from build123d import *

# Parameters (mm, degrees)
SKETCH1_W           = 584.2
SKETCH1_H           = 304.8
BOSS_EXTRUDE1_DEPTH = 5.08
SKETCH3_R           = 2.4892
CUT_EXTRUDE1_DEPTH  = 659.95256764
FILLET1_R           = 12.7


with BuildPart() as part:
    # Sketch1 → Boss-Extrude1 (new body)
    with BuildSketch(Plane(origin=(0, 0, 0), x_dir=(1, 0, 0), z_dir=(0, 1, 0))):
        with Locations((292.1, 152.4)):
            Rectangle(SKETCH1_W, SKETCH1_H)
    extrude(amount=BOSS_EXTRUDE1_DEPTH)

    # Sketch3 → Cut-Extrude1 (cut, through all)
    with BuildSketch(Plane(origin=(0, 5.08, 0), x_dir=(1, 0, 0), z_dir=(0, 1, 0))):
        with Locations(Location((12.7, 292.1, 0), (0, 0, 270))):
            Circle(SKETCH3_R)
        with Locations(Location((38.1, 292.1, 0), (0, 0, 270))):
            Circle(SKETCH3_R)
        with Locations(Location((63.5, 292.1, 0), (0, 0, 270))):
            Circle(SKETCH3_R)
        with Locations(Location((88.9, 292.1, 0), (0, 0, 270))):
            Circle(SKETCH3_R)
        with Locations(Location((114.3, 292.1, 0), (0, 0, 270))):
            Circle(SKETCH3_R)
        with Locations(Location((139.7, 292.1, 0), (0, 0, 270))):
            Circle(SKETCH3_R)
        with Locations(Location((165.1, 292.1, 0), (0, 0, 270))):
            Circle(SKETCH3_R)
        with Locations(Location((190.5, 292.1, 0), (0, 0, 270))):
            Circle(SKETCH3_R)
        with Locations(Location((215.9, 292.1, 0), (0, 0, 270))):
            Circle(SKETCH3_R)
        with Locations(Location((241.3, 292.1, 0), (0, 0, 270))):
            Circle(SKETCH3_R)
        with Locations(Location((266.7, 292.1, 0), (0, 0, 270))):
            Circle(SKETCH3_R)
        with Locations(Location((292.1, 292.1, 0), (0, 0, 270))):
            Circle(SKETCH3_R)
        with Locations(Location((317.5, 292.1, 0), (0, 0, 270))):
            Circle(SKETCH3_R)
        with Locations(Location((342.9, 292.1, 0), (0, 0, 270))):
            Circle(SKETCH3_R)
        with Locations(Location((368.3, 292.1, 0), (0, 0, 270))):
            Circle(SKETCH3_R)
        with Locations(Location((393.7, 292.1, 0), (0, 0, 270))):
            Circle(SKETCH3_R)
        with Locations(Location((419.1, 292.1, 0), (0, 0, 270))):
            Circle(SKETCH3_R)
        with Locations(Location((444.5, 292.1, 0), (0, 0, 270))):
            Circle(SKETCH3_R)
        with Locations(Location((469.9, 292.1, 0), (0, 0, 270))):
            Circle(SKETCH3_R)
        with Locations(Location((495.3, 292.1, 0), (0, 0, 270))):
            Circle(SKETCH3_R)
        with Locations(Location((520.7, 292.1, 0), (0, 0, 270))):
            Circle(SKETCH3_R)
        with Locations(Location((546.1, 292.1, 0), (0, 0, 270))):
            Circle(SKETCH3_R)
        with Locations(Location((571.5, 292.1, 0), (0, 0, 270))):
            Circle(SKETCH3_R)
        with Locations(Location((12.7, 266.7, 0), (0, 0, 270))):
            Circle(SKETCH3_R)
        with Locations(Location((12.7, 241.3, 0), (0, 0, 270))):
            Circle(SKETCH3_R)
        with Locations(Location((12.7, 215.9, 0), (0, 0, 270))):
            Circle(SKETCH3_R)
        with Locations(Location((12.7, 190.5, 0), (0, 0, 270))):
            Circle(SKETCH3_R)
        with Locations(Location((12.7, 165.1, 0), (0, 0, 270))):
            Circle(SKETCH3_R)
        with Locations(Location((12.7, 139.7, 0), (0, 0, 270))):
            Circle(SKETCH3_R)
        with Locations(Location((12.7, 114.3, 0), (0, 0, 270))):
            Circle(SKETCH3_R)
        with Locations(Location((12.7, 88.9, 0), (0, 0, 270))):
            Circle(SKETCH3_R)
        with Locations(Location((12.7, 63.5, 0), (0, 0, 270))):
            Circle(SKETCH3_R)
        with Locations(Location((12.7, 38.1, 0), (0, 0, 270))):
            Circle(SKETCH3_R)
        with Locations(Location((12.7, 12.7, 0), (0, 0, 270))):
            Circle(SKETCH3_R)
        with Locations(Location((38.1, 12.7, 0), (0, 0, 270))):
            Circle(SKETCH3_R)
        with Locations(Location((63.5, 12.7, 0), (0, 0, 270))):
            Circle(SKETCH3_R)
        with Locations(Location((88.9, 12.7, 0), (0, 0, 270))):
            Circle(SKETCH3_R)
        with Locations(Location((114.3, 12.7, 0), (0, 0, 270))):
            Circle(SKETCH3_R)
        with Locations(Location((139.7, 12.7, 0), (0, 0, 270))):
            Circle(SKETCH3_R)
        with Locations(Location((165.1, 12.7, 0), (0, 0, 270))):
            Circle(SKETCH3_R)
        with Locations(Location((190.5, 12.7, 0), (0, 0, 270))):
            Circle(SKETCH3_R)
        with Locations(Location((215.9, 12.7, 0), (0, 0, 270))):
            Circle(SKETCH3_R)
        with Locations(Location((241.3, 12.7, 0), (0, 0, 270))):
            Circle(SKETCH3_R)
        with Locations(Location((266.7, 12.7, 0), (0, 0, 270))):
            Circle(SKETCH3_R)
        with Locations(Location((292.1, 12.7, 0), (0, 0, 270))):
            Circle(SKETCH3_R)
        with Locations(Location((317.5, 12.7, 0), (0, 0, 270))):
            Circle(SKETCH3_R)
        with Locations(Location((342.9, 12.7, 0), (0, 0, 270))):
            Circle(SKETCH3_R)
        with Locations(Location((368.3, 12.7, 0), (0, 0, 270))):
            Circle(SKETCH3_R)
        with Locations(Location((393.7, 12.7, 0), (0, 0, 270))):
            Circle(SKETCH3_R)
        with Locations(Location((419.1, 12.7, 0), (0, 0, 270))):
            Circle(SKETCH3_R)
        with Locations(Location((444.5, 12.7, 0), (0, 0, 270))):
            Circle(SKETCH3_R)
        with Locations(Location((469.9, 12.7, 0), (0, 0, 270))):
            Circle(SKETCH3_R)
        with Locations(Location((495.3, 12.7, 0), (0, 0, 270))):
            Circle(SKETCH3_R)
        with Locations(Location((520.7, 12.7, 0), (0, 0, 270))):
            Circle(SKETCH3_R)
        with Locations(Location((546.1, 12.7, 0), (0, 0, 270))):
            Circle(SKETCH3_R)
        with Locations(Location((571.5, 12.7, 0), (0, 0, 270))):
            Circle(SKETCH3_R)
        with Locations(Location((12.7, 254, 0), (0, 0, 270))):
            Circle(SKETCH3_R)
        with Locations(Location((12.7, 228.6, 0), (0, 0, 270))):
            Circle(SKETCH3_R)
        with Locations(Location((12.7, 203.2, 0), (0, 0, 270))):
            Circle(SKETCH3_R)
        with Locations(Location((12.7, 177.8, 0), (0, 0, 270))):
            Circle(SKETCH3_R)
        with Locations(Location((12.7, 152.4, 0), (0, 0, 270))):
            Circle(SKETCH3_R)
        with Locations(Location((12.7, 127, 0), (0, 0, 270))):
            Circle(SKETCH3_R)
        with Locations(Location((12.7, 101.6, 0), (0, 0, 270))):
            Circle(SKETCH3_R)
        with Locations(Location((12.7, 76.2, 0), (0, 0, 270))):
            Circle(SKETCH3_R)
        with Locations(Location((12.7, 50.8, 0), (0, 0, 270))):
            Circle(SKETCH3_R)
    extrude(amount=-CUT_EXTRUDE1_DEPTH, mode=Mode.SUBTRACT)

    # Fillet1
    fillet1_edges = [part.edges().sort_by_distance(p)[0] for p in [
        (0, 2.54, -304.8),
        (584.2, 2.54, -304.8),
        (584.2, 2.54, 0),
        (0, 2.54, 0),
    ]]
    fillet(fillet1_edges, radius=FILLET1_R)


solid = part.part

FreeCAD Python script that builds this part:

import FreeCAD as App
import Part
import Sketcher

V = App.Vector
Q = App.Units.Quantity


def edges_at(feature, points):
    """Names of the edges that pass closest to the given points."""
    edges = feature.Shape.Edges
    near = lambda p: min(range(len(edges)), key=lambda i: edges[i].distToShape(Part.Vertex(*p))[0])
    return sorted({f"Edge{near(p) + 1}" for p in points})


def add_polygon(sketch, points):
    """Adds a closed chain of lines whose ends are joined by coincident constraints."""
    first, n = sketch.GeometryCount, len(points)
    for a, b in zip(points, points[1:] + points[:1]):
        sketch.addGeometry(Part.LineSegment(App.Vector(*a, 0), App.Vector(*b, 0)), False)
    for i in range(n):
        sketch.addConstraint(Sketcher.Constraint("Coincident", first + i, 2, first + (i + 1) % n, 1))

doc = App.newDocument("Part")
body = doc.addObject("PartDesign::Body", "Body")

sketch1 = body.newObject("Sketcher::SketchObject", "Sketch")
sketch1.AttachmentSupport = (doc.getObject("XZ_Plane"), [""])
sketch1.MapMode = "FlatFace"
add_polygon(sketch1, [(0, -305), (0, 0), (584, 0), (584, -305)])
sketch1.addConstraint([
    Sketcher.Constraint("Vertical", 0),
    Sketcher.Constraint("Horizontal", 1),
    Sketcher.Constraint("Vertical", 2),
    Sketcher.Constraint("Horizontal", 3),
    Sketcher.Constraint("Coincident", 0, 2, -1, 1),
    Sketcher.Constraint("DistanceX", 1, 1, 1, 2, Q("23 in")),
    Sketcher.Constraint("DistanceY", 0, 1, 0, 2, Q("12 in")),
])
pad1 = body.newObject("PartDesign::Pad", "Pad")
pad1.Profile = sketch1
pad1.Length = Q("0.2 in")
pad1.Reversed = True

sketch2 = body.newObject("Sketcher::SketchObject", "Sketch001")
sketch2.AttachmentSupport = (doc.getObject("XZ_Plane"), [""])
sketch2.MapMode = "FlatFace"
sketch2.AttachmentOffset = App.Placement(V(0, 0, -0.2 * 25.4), App.Rotation())
sketch2.addGeometry([
    Part.Circle(V(12.7, -292.1, 0), V(0, 0, 1), 2.5),
    Part.Circle(V(38.1, -292.1, 0), V(0, 0, 1), 2.5),
    Part.Circle(V(63.5, -292.1, 0), V(0, 0, 1), 2.5),
    Part.Circle(V(88.9, -292.1, 0), V(0, 0, 1), 2.5),
    Part.Circle(V(114.3, -292.1, 0), V(0, 0, 1), 2.5),
    Part.Circle(V(139.7, -292.1, 0), V(0, 0, 1), 2.5),
    Part.Circle(V(165.1, -292.1, 0), V(0, 0, 1), 2.5),
    Part.Circle(V(190.5, -292.1, 0), V(0, 0, 1), 2.5),
    Part.Circle(V(215.9, -292.1, 0), V(0, 0, 1), 2.5),
    Part.Circle(V(241.3, -292.1, 0), V(0, 0, 1), 2.5),
    Part.Circle(V(266.7, -292.1, 0), V(0, 0, 1), 2.5),
    Part.Circle(V(292.1, -292.1, 0), V(0, 0, 1), 2.5),
    Part.Circle(V(317.5, -292.1, 0), V(0, 0, 1), 2.5),
    Part.Circle(V(342.9, -292.1, 0), V(0, 0, 1), 2.5),
    Part.Circle(V(368.3, -292.1, 0), V(0, 0, 1), 2.5),
    Part.Circle(V(393.7, -292.1, 0), V(0, 0, 1), 2.5),
    Part.Circle(V(419.1, -292.1, 0), V(0, 0, 1), 2.5),
    Part.Circle(V(444.5, -292.1, 0), V(0, 0, 1), 2.5),
    Part.Circle(V(469.9, -292.1, 0), V(0, 0, 1), 2.5),
    Part.Circle(V(495.3, -292.1, 0), V(0, 0, 1), 2.5),
    Part.Circle(V(520.7, -292.1, 0), V(0, 0, 1), 2.5),
    Part.Circle(V(546.1, -292.1, 0), V(0, 0, 1), 2.5),
    Part.Circle(V(571.5, -292.1, 0), V(0, 0, 1), 2.5),
    Part.Circle(V(12.7, -266.7, 0), V(0, 0, 1), 2.5),
    Part.Circle(V(12.7, -241.3, 0), V(0, 0, 1), 2.5),
    Part.Circle(V(12.7, -215.9, 0), V(0, 0, 1), 2.5),
    Part.Circle(V(12.7, -190.5, 0), V(0, 0, 1), 2.5),
    Part.Circle(V(12.7, -165.1, 0), V(0, 0, 1), 2.5),
    Part.Circle(V(12.7, -139.7, 0), V(0, 0, 1), 2.5),
    Part.Circle(V(12.7, -114.3, 0), V(0, 0, 1), 2.5),
    Part.Circle(V(12.7, -88.9, 0), V(0, 0, 1), 2.5),
    Part.Circle(V(12.7, -63.5, 0), V(0, 0, 1), 2.5),
    Part.Circle(V(12.7, -38.1, 0), V(0, 0, 1), 2.5),
    Part.Circle(V(12.7, -12.7, 0), V(0, 0, 1), 2.5),
    Part.Circle(V(38.1, -12.7, 0), V(0, 0, 1), 2.5),
    Part.Circle(V(63.5, -12.7, 0), V(0, 0, 1), 2.5),
    Part.Circle(V(88.9, -12.7, 0), V(0, 0, 1), 2.5),
    Part.Circle(V(114.3, -12.7, 0), V(0, 0, 1), 2.5),
    Part.Circle(V(139.7, -12.7, 0), V(0, 0, 1), 2.5),
    Part.Circle(V(165.1, -12.7, 0), V(0, 0, 1), 2.5),
    Part.Circle(V(190.5, -12.7, 0), V(0, 0, 1), 2.5),
    Part.Circle(V(215.9, -12.7, 0), V(0, 0, 1), 2.5),
    Part.Circle(V(241.3, -12.7, 0), V(0, 0, 1), 2.5),
    Part.Circle(V(266.7, -12.7, 0), V(0, 0, 1), 2.5),
    Part.Circle(V(292.1, -12.7, 0), V(0, 0, 1), 2.5),
    Part.Circle(V(317.5, -12.7, 0), V(0, 0, 1), 2.5),
    Part.Circle(V(342.9, -12.7, 0), V(0, 0, 1), 2.5),
    Part.Circle(V(368.3, -12.7, 0), V(0, 0, 1), 2.5),
    Part.Circle(V(393.7, -12.7, 0), V(0, 0, 1), 2.5),
    Part.Circle(V(419.1, -12.7, 0), V(0, 0, 1), 2.5),
    Part.Circle(V(444.5, -12.7, 0), V(0, 0, 1), 2.5),
    Part.Circle(V(469.9, -12.7, 0), V(0, 0, 1), 2.5),
    Part.Circle(V(495.3, -12.7, 0), V(0, 0, 1), 2.5),
    Part.Circle(V(520.7, -12.7, 0), V(0, 0, 1), 2.5),
    Part.Circle(V(546.1, -12.7, 0), V(0, 0, 1), 2.5),
    Part.Circle(V(571.5, -12.7, 0), V(0, 0, 1), 2.5),
    Part.Circle(V(12.7, -254, 0), V(0, 0, 1), 2.5),
    Part.Circle(V(12.7, -228.6, 0), V(0, 0, 1), 2.5),
    Part.Circle(V(12.7, -203.2, 0), V(0, 0, 1), 2.5),
    Part.Circle(V(12.7, -177.8, 0), V(0, 0, 1), 2.5),
    Part.Circle(V(12.7, -152.4, 0), V(0, 0, 1), 2.5),
    Part.Circle(V(12.7, -127, 0), V(0, 0, 1), 2.5),
    Part.Circle(V(12.7, -101.6, 0), V(0, 0, 1), 2.5),
    Part.Circle(V(12.7, -76.2, 0), V(0, 0, 1), 2.5),
    Part.Circle(V(12.7, -50.8, 0), V(0, 0, 1), 2.5),
], False)
sketch2.addConstraint([
    Sketcher.Constraint("Equal", 0, 1),
    Sketcher.Constraint("Equal", 1, 2),
    Sketcher.Constraint("Equal", 2, 3),
    Sketcher.Constraint("Equal", 3, 4),
    Sketcher.Constraint("Equal", 4, 5),
    Sketcher.Constraint("Equal", 5, 6),
    Sketcher.Constraint("Equal", 6, 7),
    Sketcher.Constraint("Equal", 7, 8),
    Sketcher.Constraint("Equal", 8, 9),
    Sketcher.Constraint("Equal", 9, 10),
    Sketcher.Constraint("Equal", 10, 11),
    Sketcher.Constraint("Equal", 11, 12),
    Sketcher.Constraint("Equal", 12, 13),
    Sketcher.Constraint("Equal", 13, 14),
    Sketcher.Constraint("Equal", 14, 15),
    Sketcher.Constraint("Equal", 15, 16),
    Sketcher.Constraint("Equal", 16, 17),
    Sketcher.Constraint("Equal", 17, 18),
    Sketcher.Constraint("Equal", 18, 19),
    Sketcher.Constraint("Equal", 19, 20),
    Sketcher.Constraint("Equal", 20, 21),
    Sketcher.Constraint("Equal", 21, 22),
    Sketcher.Constraint("Equal", 22, 23),
    Sketcher.Constraint("Equal", 23, 24),
    Sketcher.Constraint("Equal", 24, 25),
    Sketcher.Constraint("Equal", 25, 26),
    Sketcher.Constraint("Equal", 26, 27),
    Sketcher.Constraint("Equal", 27, 28),
    Sketcher.Constraint("Equal", 28, 29),
    Sketcher.Constraint("Equal", 29, 30),
    Sketcher.Constraint("Equal", 30, 31),
    Sketcher.Constraint("Equal", 31, 32),
    Sketcher.Constraint("Equal", 32, 33),
    Sketcher.Constraint("Equal", 33, 34),
    Sketcher.Constraint("Equal", 34, 35),
    Sketcher.Constraint("Equal", 35, 36),
    Sketcher.Constraint("Equal", 36, 37),
    Sketcher.Constraint("Equal", 37, 38),
    Sketcher.Constraint("Equal", 38, 39),
    Sketcher.Constraint("Equal", 39, 40),
    Sketcher.Constraint("Equal", 40, 41),
    Sketcher.Constraint("Equal", 41, 42),
    Sketcher.Constraint("Equal", 42, 43),
    Sketcher.Constraint("Equal", 43, 44),
    Sketcher.Constraint("Equal", 44, 45),
    Sketcher.Constraint("Equal", 45, 46),
    Sketcher.Constraint("Equal", 46, 47),
    Sketcher.Constraint("Equal", 47, 48),
    Sketcher.Constraint("Equal", 48, 49),
    Sketcher.Constraint("Equal", 49, 50),
    Sketcher.Constraint("Equal", 50, 51),
    Sketcher.Constraint("Equal", 51, 52),
    Sketcher.Constraint("Equal", 52, 53),
    Sketcher.Constraint("Equal", 53, 54),
    Sketcher.Constraint("Equal", 54, 55),
    Sketcher.Constraint("Equal", 55, 56),
    Sketcher.Constraint("Equal", 56, 57),
    Sketcher.Constraint("Equal", 57, 58),
    Sketcher.Constraint("Equal", 58, 59),
    Sketcher.Constraint("Equal", 59, 60),
    Sketcher.Constraint("Equal", 60, 61),
    Sketcher.Constraint("Equal", 61, 62),
    Sketcher.Constraint("Equal", 62, 63),
    Sketcher.Constraint("Equal", 63, 64),
    Sketcher.Constraint("Horizontal", 0, 3, 1, 3),
    Sketcher.Constraint("Horizontal", 1, 3, 2, 3),
    Sketcher.Constraint("Horizontal", 2, 3, 3, 3),
    Sketcher.Constraint("Horizontal", 3, 3, 4, 3),
    Sketcher.Constraint("Horizontal", 4, 3, 5, 3),
    Sketcher.Constraint("Horizontal", 5, 3, 6, 3),
    Sketcher.Constraint("Horizontal", 6, 3, 7, 3),
    Sketcher.Constraint("Horizontal", 7, 3, 8, 3),
    Sketcher.Constraint("Horizontal", 8, 3, 9, 3),
    Sketcher.Constraint("Horizontal", 9, 3, 10, 3),
    Sketcher.Constraint("Horizontal", 10, 3, 11, 3),
    Sketcher.Constraint("Horizontal", 11, 3, 12, 3),
    Sketcher.Constraint("Horizontal", 12, 3, 13, 3),
    Sketcher.Constraint("Horizontal", 13, 3, 14, 3),
    Sketcher.Constraint("Horizontal", 14, 3, 15, 3),
    Sketcher.Constraint("Horizontal", 15, 3, 16, 3),
    Sketcher.Constraint("Horizontal", 16, 3, 17, 3),
    Sketcher.Constraint("Horizontal", 17, 3, 18, 3),
    Sketcher.Constraint("Horizontal", 18, 3, 19, 3),
    Sketcher.Constraint("Horizontal", 19, 3, 20, 3),
    Sketcher.Constraint("Horizontal", 20, 3, 21, 3),
    Sketcher.Constraint("Horizontal", 21, 3, 22, 3),
    Sketcher.Constraint("Horizontal", 33, 3, 34, 3),
    Sketcher.Constraint("Horizontal", 34, 3, 35, 3),
    Sketcher.Constraint("Horizontal", 35, 3, 36, 3),
    Sketcher.Constraint("Horizontal", 36, 3, 37, 3),
    Sketcher.Constraint("Horizontal", 37, 3, 38, 3),
    Sketcher.Constraint("Horizontal", 38, 3, 39, 3),
    Sketcher.Constraint("Horizontal", 39, 3, 40, 3),
    Sketcher.Constraint("Horizontal", 40, 3, 41, 3),
    Sketcher.Constraint("Horizontal", 41, 3, 42, 3),
    Sketcher.Constraint("Horizontal", 42, 3, 43, 3),
    Sketcher.Constraint("Horizontal", 43, 3, 44, 3),
    Sketcher.Constraint("Horizontal", 44, 3, 45, 3),
    Sketcher.Constraint("Horizontal", 45, 3, 46, 3),
    Sketcher.Constraint("Horizontal", 46, 3, 47, 3),
    Sketcher.Constraint("Horizontal", 47, 3, 48, 3),
    Sketcher.Constraint("Horizontal", 48, 3, 49, 3),
    Sketcher.Constraint("Horizontal", 49, 3, 50, 3),
    Sketcher.Constraint("Horizontal", 50, 3, 51, 3),
    Sketcher.Constraint("Horizontal", 51, 3, 52, 3),
    Sketcher.Constraint("Horizontal", 52, 3, 53, 3),
    Sketcher.Constraint("Horizontal", 53, 3, 54, 3),
    Sketcher.Constraint("Horizontal", 54, 3, 55, 3),
    Sketcher.Constraint("Vertical", 0, 3, 23, 3),
    Sketcher.Constraint("Vertical", 23, 3, 24, 3),
    Sketcher.Constraint("Vertical", 24, 3, 25, 3),
    Sketcher.Constraint("Vertical", 25, 3, 26, 3),
    Sketcher.Constraint("Vertical", 26, 3, 27, 3),
    Sketcher.Constraint("Vertical", 27, 3, 28, 3),
    Sketcher.Constraint("Vertical", 28, 3, 29, 3),
    Sketcher.Constraint("Vertical", 29, 3, 30, 3),
    Sketcher.Constraint("Vertical", 30, 3, 31, 3),
    Sketcher.Constraint("Vertical", 31, 3, 32, 3),
    Sketcher.Constraint("Vertical", 32, 3, 33, 3),
    Sketcher.Constraint("Vertical", 1, 3, 34, 3),
    Sketcher.Constraint("Vertical", 2, 3, 35, 3),
    Sketcher.Constraint("Vertical", 3, 3, 36, 3),
    Sketcher.Constraint("Vertical", 4, 3, 37, 3),
    Sketcher.Constraint("Vertical", 5, 3, 38, 3),
    Sketcher.Constraint("Vertical", 6, 3, 39, 3),
    Sketcher.Constraint("Vertical", 7, 3, 40, 3),
    Sketcher.Constraint("Vertical", 8, 3, 41, 3),
    Sketcher.Constraint("Vertical", 9, 3, 42, 3),
    Sketcher.Constraint("Vertical", 10, 3, 43, 3),
    Sketcher.Constraint("Vertical", 11, 3, 44, 3),
    Sketcher.Constraint("Vertical", 12, 3, 45, 3),
    Sketcher.Constraint("Vertical", 13, 3, 46, 3),
    Sketcher.Constraint("Vertical", 14, 3, 47, 3),
    Sketcher.Constraint("Vertical", 15, 3, 48, 3),
    Sketcher.Constraint("Vertical", 16, 3, 49, 3),
    Sketcher.Constraint("Vertical", 17, 3, 50, 3),
    Sketcher.Constraint("Vertical", 18, 3, 51, 3),
    Sketcher.Constraint("Vertical", 19, 3, 52, 3),
    Sketcher.Constraint("Vertical", 20, 3, 53, 3),
    Sketcher.Constraint("Vertical", 21, 3, 54, 3),
    Sketcher.Constraint("Vertical", 22, 3, 55, 3),
    Sketcher.Constraint("Vertical", 33, 3, 56, 3),
    Sketcher.Constraint("Vertical", 56, 3, 57, 3),
    Sketcher.Constraint("Vertical", 57, 3, 58, 3),
    Sketcher.Constraint("Vertical", 58, 3, 59, 3),
    Sketcher.Constraint("Vertical", 59, 3, 60, 3),
    Sketcher.Constraint("Vertical", 60, 3, 61, 3),
    Sketcher.Constraint("Vertical", 61, 3, 62, 3),
    Sketcher.Constraint("Vertical", 62, 3, 63, 3),
    Sketcher.Constraint("Vertical", 63, 3, 64, 3),
    Sketcher.Constraint("Diameter", 0, Q("0.196 in")),
    Sketcher.Constraint("DistanceY", 56, 3, -1, 1, Q("10 in")),
    Sketcher.Constraint("DistanceY", 57, 3, -1, 1, Q("9 in")),
    Sketcher.Constraint("DistanceY", 58, 3, -1, 1, Q("8 in")),
    Sketcher.Constraint("DistanceY", 59, 3, -1, 1, Q("7 in")),
    Sketcher.Constraint("DistanceY", 60, 3, -1, 1, Q("6 in")),
    Sketcher.Constraint("DistanceY", 61, 3, -1, 1, Q("5 in")),
    Sketcher.Constraint("DistanceY", 62, 3, -1, 1, Q("4 in")),
    Sketcher.Constraint("DistanceY", 63, 3, -1, 1, Q("3 in")),
    Sketcher.Constraint("DistanceY", 64, 3, -1, 1, Q("2 in")),
    Sketcher.Constraint("DistanceX", -1, 1, 0, 3, Q("0.5 in")),
    Sketcher.Constraint("DistanceY", 0, 3, -1, 1, Q("11.5 in")),
    Sketcher.Constraint("DistanceX", -1, 1, 1, 3, Q("1.5 in")),
    Sketcher.Constraint("DistanceX", -1, 1, 2, 3, Q("2.5 in")),
    Sketcher.Constraint("DistanceX", -1, 1, 3, 3, Q("3.5 in")),
    Sketcher.Constraint("DistanceX", -1, 1, 4, 3, Q("4.5 in")),
    Sketcher.Constraint("DistanceX", -1, 1, 5, 3, Q("5.5 in")),
    Sketcher.Constraint("DistanceX", -1, 1, 6, 3, Q("6.5 in")),
    Sketcher.Constraint("DistanceX", -1, 1, 7, 3, Q("7.5 in")),
    Sketcher.Constraint("DistanceX", -1, 1, 8, 3, Q("8.5 in")),
    Sketcher.Constraint("DistanceX", -1, 1, 9, 3, Q("9.5 in")),
    Sketcher.Constraint("DistanceX", -1, 1, 10, 3, Q("10.5 in")),
    Sketcher.Constraint("DistanceX", -1, 1, 11, 3, Q("11.5 in")),
    Sketcher.Constraint("DistanceX", -1, 1, 12, 3, Q("12.5 in")),
    Sketcher.Constraint("DistanceX", -1, 1, 13, 3, Q("13.5 in")),
    Sketcher.Constraint("DistanceX", -1, 1, 14, 3, Q("14.5 in")),
    Sketcher.Constraint("DistanceX", -1, 1, 15, 3, Q("15.5 in")),
    Sketcher.Constraint("DistanceX", -1, 1, 16, 3, Q("16.5 in")),
    Sketcher.Constraint("DistanceX", -1, 1, 17, 3, Q("17.5 in")),
    Sketcher.Constraint("DistanceX", -1, 1, 18, 3, Q("18.5 in")),
    Sketcher.Constraint("DistanceX", -1, 1, 19, 3, Q("19.5 in")),
    Sketcher.Constraint("DistanceX", -1, 1, 20, 3, Q("20.5 in")),
    Sketcher.Constraint("DistanceX", -1, 1, 21, 3, Q("21.5 in")),
    Sketcher.Constraint("DistanceX", -1, 1, 22, 3, Q("22.5 in")),
    Sketcher.Constraint("DistanceY", 23, 3, -1, 1, Q("10.5 in")),
    Sketcher.Constraint("DistanceY", 24, 3, -1, 1, Q("9.5 in")),
    Sketcher.Constraint("DistanceY", 25, 3, -1, 1, Q("8.5 in")),
    Sketcher.Constraint("DistanceY", 26, 3, -1, 1, Q("7.5 in")),
    Sketcher.Constraint("DistanceY", 27, 3, -1, 1, Q("6.5 in")),
    Sketcher.Constraint("DistanceY", 28, 3, -1, 1, Q("5.5 in")),
    Sketcher.Constraint("DistanceY", 29, 3, -1, 1, Q("4.5 in")),
    Sketcher.Constraint("DistanceY", 30, 3, -1, 1, Q("3.5 in")),
    Sketcher.Constraint("DistanceY", 31, 3, -1, 1, Q("2.5 in")),
    Sketcher.Constraint("DistanceY", 32, 3, -1, 1, Q("1.5 in")),
    Sketcher.Constraint("DistanceY", 33, 3, -1, 1, Q("0.5 in")),
])
pocket1 = body.newObject("PartDesign::Pocket", "Pocket")
pocket1.Profile = sketch2
pocket1.Type = "ThroughAll"
pocket1.Reversed = True
doc.recompute()

fillet = body.newObject("PartDesign::Fillet", "Fillet")
fillet.Base = (pocket1, edges_at(pocket1, [
    (0, 2.54, -304.8),
    (584.2, 2.54, -304.8),
    (584.2, 2.54, 0),
    (0, 2.54, 0),
]))
fillet.Radius = Q("0.5 in")

doc.recompute()
